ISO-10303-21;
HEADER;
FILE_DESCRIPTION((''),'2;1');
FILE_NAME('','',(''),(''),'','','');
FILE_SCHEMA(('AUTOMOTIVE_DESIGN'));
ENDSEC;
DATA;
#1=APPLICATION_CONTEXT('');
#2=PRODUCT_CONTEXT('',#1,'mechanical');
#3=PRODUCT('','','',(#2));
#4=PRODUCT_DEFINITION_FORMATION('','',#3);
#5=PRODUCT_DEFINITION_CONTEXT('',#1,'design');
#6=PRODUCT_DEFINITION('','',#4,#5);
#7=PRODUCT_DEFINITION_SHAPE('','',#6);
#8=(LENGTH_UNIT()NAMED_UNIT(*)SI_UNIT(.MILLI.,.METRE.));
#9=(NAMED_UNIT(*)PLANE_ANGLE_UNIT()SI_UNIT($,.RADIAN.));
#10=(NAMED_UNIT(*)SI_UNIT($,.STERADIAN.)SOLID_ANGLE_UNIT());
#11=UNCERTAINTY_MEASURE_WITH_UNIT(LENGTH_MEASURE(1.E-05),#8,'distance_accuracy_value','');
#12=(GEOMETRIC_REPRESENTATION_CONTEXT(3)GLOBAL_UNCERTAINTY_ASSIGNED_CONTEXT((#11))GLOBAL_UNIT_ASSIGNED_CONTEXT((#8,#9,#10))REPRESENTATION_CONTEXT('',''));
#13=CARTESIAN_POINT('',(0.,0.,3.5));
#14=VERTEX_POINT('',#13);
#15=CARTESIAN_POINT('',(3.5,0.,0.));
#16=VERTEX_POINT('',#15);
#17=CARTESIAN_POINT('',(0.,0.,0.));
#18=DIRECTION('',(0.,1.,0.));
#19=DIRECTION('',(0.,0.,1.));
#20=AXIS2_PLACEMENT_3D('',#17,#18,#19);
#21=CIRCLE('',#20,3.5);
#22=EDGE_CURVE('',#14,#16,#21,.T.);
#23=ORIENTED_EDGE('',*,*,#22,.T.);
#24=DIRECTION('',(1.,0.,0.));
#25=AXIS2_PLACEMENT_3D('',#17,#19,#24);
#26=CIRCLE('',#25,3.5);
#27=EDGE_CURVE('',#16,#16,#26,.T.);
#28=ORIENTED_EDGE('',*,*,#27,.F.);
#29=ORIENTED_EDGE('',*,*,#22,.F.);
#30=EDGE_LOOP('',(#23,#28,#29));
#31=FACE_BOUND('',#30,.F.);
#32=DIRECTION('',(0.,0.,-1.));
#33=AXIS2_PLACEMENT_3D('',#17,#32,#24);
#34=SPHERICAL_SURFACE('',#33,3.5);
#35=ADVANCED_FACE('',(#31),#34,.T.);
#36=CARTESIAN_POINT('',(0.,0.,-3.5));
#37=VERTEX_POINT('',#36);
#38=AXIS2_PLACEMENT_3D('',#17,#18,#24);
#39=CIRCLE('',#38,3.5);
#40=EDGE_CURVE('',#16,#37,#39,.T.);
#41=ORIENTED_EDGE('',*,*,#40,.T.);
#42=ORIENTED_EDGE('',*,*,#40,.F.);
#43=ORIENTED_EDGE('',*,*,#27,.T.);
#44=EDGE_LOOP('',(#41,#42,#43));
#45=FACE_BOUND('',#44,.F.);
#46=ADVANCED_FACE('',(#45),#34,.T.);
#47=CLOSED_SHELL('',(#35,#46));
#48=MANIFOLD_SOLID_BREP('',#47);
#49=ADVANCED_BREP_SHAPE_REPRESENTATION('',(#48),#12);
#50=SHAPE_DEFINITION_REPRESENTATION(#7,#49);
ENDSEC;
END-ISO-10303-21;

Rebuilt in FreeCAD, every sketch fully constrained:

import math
import FreeCAD as App
import Part
import Sketcher
from FreeCAD import Vector
Q = App.Units.Quantity

doc = App.newDocument("Part")
body = doc.addObject("PartDesign::Body", "Body")

sketch1 = body.newObject("Sketcher::SketchObject", "Sketch")
sketch1.AttachmentSupport = (doc.getObject("XZ_Plane"), [""])
sketch1.MapMode = "FlatFace"
sketch1.addGeometry(Part.ArcOfCircle(Part.Circle(Vector(0, 0, 0), Vector(0, 0, 1), 3.5), math.radians(0), math.radians(90)), False)
sketch1.addGeometry(Part.ArcOfCircle(Part.Circle(Vector(0, 0, 0), Vector(0, 0, 1), 3.5), math.radians(-90), math.radians(0)), False)
sketch1.addGeometry(Part.LineSegment(Vector(0, -3.5, 0), Vector(0, 3.5, 0)), False)
sketch1.addConstraint(Sketcher.Constraint("Tangent", 0, 1, 1, 2))
sketch1.addConstraint(Sketcher.Constraint("Coincident", 1, 1, 2, 1))
sketch1.addConstraint(Sketcher.Constraint("Coincident", 2, 2, 0, 2))
sketch1.addConstraint(Sketcher.Constraint("Vertical", 2))
sketch1.addConstraint(Sketcher.Constraint("Coincident", 0, 3, -1, 1))
sketch1.addConstraint(Sketcher.Constraint("Equal", 0, 1))
sketch1.addConstraint(Sketcher.Constraint("PointOnObject", 0, 1, -1))
sketch1.addConstraint(Sketcher.Constraint("PointOnObject", 1, 1, -2))
sketch1.addConstraint(Sketcher.Constraint("Radius", 0, Q("3.5 mm")))
revolution = body.newObject("PartDesign::Revolution", "Revolution")
revolution.Profile = sketch1
revolution.ReferenceAxis = (sketch1, ["V_Axis"])
revolution.Angle = 360

doc.recompute()
